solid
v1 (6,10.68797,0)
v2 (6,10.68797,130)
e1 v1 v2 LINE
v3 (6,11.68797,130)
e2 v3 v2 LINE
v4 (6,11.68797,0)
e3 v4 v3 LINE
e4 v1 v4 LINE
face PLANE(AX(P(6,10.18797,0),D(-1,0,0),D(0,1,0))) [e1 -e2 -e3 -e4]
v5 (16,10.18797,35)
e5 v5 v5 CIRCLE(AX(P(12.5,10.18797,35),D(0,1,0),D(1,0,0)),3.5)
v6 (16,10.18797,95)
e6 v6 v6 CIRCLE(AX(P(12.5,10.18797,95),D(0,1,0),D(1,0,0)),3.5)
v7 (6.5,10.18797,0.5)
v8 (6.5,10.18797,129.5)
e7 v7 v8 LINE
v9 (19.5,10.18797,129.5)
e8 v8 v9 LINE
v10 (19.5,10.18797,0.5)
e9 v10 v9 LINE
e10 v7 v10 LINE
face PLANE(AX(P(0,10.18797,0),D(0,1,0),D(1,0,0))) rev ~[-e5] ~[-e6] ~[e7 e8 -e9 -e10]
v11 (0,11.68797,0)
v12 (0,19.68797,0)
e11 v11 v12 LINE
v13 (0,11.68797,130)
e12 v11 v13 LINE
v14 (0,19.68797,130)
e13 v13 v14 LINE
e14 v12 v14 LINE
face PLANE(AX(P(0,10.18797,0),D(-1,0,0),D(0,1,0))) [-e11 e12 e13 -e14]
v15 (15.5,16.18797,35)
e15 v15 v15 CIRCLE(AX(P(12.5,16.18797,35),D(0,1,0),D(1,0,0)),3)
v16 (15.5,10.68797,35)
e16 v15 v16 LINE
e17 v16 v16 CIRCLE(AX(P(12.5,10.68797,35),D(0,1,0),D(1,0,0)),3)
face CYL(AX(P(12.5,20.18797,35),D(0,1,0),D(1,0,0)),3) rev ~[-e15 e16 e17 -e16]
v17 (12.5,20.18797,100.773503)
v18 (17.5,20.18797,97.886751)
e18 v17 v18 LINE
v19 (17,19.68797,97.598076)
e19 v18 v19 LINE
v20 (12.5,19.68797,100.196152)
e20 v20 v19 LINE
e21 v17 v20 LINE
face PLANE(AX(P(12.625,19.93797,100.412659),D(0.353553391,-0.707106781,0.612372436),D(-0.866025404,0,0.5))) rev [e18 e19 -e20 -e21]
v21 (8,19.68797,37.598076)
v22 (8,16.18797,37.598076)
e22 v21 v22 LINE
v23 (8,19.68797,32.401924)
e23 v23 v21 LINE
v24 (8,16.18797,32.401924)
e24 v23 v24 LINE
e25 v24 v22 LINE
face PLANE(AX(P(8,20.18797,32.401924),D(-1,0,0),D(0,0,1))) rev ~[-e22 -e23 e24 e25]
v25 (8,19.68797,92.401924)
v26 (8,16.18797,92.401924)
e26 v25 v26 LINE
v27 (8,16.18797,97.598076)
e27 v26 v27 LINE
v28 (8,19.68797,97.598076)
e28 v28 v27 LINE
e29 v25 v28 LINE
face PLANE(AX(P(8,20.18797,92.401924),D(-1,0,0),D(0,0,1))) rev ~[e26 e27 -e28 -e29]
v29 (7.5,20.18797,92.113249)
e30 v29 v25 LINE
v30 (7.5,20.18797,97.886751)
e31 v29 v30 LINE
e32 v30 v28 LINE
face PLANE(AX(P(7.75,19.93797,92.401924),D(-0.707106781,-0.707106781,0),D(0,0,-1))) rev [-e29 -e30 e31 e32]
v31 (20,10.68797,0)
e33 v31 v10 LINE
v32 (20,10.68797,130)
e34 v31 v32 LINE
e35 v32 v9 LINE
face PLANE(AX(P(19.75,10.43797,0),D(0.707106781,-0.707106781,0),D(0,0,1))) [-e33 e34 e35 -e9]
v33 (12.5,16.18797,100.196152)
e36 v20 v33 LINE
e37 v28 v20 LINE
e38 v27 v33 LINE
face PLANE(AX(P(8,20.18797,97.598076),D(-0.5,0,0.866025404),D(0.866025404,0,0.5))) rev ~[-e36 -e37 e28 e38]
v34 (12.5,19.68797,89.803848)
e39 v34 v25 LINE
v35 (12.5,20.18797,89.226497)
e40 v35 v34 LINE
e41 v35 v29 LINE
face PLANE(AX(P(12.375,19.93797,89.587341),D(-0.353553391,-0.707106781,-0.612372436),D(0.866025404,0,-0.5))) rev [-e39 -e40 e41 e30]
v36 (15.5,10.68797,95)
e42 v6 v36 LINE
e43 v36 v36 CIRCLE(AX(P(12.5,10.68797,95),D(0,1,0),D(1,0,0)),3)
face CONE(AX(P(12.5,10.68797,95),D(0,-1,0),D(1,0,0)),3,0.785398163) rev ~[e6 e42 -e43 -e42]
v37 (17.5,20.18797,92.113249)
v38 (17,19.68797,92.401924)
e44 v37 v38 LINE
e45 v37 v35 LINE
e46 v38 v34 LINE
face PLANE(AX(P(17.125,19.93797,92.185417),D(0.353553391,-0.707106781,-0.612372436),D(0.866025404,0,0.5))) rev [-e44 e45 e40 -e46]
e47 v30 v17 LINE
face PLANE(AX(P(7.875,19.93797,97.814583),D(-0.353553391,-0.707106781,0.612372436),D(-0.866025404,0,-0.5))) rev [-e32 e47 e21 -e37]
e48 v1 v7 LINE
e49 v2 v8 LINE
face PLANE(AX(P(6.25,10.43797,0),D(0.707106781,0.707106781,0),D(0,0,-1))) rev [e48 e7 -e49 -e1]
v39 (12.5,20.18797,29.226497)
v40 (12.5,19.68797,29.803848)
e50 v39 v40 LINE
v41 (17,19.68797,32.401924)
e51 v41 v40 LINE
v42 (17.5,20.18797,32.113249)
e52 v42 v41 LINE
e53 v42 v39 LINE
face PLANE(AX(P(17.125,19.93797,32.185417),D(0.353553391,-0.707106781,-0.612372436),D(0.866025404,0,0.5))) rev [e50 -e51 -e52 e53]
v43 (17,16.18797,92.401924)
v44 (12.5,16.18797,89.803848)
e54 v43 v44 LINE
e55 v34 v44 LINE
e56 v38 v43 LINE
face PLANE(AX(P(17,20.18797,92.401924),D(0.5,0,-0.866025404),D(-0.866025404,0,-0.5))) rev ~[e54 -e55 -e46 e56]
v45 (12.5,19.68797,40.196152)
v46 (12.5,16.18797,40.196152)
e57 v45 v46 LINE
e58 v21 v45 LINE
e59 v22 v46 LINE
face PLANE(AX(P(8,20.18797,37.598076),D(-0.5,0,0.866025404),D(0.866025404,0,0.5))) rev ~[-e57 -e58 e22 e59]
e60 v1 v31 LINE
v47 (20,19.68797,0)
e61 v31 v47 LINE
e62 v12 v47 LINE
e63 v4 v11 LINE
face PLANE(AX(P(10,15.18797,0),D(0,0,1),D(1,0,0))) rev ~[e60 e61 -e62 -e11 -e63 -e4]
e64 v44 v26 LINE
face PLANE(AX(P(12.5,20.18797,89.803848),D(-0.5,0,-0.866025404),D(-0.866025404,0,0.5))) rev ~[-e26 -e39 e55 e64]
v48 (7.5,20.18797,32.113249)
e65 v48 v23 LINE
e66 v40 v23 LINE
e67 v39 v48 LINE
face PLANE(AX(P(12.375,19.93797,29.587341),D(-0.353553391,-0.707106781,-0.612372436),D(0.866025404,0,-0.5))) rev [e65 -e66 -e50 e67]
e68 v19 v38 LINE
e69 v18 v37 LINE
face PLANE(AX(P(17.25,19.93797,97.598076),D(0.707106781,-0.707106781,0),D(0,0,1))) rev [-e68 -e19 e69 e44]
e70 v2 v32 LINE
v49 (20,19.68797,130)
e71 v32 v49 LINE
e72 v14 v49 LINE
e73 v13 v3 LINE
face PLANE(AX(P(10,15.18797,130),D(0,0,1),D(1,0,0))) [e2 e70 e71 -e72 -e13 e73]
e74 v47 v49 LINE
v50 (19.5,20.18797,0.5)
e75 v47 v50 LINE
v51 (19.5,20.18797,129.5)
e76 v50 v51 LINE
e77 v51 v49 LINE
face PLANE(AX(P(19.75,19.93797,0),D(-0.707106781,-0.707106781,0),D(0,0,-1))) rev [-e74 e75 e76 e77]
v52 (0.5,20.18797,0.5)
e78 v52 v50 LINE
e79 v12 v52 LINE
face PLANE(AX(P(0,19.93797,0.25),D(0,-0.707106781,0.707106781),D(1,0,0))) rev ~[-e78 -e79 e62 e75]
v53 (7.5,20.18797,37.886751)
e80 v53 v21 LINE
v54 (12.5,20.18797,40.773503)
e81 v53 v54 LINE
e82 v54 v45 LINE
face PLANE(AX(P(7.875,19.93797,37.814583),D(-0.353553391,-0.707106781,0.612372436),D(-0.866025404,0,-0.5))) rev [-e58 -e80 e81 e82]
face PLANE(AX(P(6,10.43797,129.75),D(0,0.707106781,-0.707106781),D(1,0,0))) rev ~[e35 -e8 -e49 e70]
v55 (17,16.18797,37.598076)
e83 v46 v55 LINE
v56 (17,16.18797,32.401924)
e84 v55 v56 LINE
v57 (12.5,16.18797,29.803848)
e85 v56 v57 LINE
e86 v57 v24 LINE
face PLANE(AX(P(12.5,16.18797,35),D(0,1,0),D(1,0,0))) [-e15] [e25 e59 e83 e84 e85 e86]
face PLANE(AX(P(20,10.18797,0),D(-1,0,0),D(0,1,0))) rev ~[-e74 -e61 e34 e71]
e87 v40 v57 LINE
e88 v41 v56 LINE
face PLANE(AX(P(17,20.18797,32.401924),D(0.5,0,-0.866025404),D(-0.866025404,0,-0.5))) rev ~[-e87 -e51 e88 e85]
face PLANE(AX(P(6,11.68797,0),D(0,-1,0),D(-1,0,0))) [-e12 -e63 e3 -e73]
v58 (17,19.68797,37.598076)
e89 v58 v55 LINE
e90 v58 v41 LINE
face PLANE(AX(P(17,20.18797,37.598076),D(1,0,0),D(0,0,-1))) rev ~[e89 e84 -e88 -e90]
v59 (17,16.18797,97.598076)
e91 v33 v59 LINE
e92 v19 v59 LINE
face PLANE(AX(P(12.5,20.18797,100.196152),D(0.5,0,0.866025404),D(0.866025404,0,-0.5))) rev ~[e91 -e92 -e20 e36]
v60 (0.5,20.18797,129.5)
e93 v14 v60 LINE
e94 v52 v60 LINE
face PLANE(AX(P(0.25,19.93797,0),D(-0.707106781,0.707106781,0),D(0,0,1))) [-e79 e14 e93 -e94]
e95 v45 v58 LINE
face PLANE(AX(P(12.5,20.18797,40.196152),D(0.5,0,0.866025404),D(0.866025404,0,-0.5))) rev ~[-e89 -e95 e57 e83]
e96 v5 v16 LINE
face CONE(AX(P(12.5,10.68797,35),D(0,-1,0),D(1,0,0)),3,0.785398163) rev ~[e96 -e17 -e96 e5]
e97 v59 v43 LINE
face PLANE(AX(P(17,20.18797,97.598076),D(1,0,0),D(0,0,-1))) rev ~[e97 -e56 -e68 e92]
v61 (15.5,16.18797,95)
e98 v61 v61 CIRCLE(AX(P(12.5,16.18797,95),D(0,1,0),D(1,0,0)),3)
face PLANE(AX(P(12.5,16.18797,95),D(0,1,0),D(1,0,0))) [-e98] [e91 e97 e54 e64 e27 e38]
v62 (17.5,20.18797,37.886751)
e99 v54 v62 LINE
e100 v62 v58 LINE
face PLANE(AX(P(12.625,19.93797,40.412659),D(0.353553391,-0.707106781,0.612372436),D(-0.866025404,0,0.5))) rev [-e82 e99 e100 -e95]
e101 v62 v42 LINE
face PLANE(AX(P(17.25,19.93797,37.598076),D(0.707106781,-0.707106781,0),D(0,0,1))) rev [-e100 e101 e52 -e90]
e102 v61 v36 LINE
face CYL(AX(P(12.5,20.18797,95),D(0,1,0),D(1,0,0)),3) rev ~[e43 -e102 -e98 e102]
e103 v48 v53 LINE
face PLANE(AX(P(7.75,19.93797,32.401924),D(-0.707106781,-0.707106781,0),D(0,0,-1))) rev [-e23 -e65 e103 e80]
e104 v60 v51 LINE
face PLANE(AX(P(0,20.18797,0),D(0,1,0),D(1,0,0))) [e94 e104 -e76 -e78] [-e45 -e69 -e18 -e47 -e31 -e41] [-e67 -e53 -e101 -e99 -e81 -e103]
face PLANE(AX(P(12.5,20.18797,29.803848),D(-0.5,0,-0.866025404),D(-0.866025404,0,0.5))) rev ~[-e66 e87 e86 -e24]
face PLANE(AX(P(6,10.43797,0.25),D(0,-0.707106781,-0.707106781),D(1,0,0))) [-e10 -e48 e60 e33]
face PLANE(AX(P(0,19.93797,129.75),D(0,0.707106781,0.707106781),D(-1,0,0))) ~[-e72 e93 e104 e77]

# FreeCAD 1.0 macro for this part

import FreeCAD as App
import Part
import Sketcher
from FreeCAD import Vector
Q = App.Units.Quantity


def edges_at(feature, points):
    """Names of the edges that pass closest to the given points."""
    edges = feature.Shape.Edges
    near = lambda p: min(range(len(edges)), key=lambda i: edges[i].distToShape(Part.Vertex(*p))[0])
    return sorted({f"Edge{near(p) + 1}" for p in points})


def add_polygon(sketch, points):
    """Adds a closed chain of lines whose ends are joined by coincident constraints."""
    first, n = sketch.GeometryCount, len(points)
    for a, b in zip(points, points[1:] + points[:1]):
        sketch.addGeometry(Part.LineSegment(App.Vector(*a, 0), App.Vector(*b, 0)), False)
    for i in range(n):
        sketch.addConstraint(Sketcher.Constraint("Coincident", first + i, 2, first + (i + 1) % n, 1))

doc = App.newDocument("Part")
body = doc.addObject("PartDesign::Body", "Body")

# Sketch on XY plane
sketch1 = body.newObject("Sketcher::SketchObject", "Sketch")
sketch1.AttachmentSupport = (doc.getObject("XY_Plane"), [""])
sketch1.MapMode = "FlatFace"
add_polygon(sketch1, [(0, 20), (0, 10), (20, 10), (20, 20)])  # lines 0-3
sketch1.addConstraint(Sketcher.Constraint("Vertical", 0))
sketch1.addConstraint(Sketcher.Constraint("Horizontal", 1))
sketch1.addConstraint(Sketcher.Constraint("Vertical", 2))
sketch1.addConstraint(Sketcher.Constraint("Horizontal", 3))
sketch1.addConstraint(Sketcher.Constraint("PointOnObject", 0, 2, -2))
sketch1.addConstraint(Sketcher.Constraint("DistanceX", 1, 1, 1, 2, 20.0))
sketch1.addConstraint(Sketcher.Constraint("DistanceY", 0, 2, 0, 1, 10.0))
sketch1.addConstraint(Sketcher.Constraint("DistanceY", -1, 1, 0, 2, 10.18797))
pad1 = body.newObject("PartDesign::Pad", "Pad")
pad1.Profile = sketch1
pad1.Length = 130

# Sketch on XZ plane
sketch2 = body.newObject("Sketcher::SketchObject", "Sketch001")
sketch2.AttachmentSupport = (doc.getObject("XZ_Plane"), [""])
sketch2.MapMode = "FlatFace"
sketch2.AttachmentOffset = App.Placement(Vector(0, 0, -20.18797), App.Rotation())
sketch2.addGeometry(Part.Circle(Vector(12.5, 35, 0), Vector(0, 0, 1), 3), False)
sketch2.addConstraint(Sketcher.Constraint("Diameter", 0, 6.0))
sketch2.addConstraint(Sketcher.Constraint("DistanceY", -1, 1, 0, 3, 35.0))
sketch2.addConstraint(Sketcher.Constraint("DistanceX", -1, 1, 0, 3, 12.5))
pocket1 = body.newObject("PartDesign::Pocket", "Pocket")
pocket1.Profile = sketch2
pocket1.Length = 140
pocket1.Reversed = True

# Sketch on XZ plane
sketch3 = body.newObject("Sketcher::SketchObject", "Sketch002")
sketch3.AttachmentSupport = (doc.getObject("XZ_Plane"), [""])
sketch3.MapMode = "FlatFace"
sketch3.AttachmentOffset = App.Placement(Vector(0, 0, -20.18797), App.Rotation())
add_polygon(sketch3, [(12, 30), (8, 32), (8, 38), (12, 40), (17, 38), (17, 32)])  # lines 0-5
sketch3.addConstraint(Sketcher.Constraint("Vertical", 1))
sketch3.addConstraint(Sketcher.Constraint("Vertical", 4))
sketch3.addConstraint(Sketcher.Constraint("Parallel", 0, 3))
sketch3.addConstraint(Sketcher.Constraint("Parallel", 2, 5))
sketch3.addConstraint(Sketcher.Constraint("Horizontal", 1, 2, 3, 2))
sketch3.addConstraint(Sketcher.Constraint("Horizontal", 0, 2, 4, 2))
sketch3.addConstraint(Sketcher.Constraint("Vertical", 2, 2, 5, 2))
sketch3.addConstraint(Sketcher.Constraint("Angle", 0, Q("150 deg")))
sketch3.addConstraint(Sketcher.Constraint("DistanceX", -1, 1, 0, 2, 8.0))
sketch3.addConstraint(Sketcher.Constraint("DistanceX", -1, 1, 3, 2, 17.0))
sketch3.addConstraint(Sketcher.Constraint("DistanceY", 1, 1, 1, 2, 5.196152))
sketch3.addConstraint(Sketcher.Constraint("DistanceY", -1, 1, 0, 2, 32.401924))
pocket2 = body.newObject("PartDesign::Pocket", "Pocket001")
pocket2.Profile = sketch3
pocket2.Length = 4
pocket2.Reversed = True
doc.recompute()

linearpattern = body.newObject("PartDesign::LinearPattern", "LinearPattern")
linearpattern.Originals = [pocket1, pocket2]
linearpattern.Direction = (doc.getObject("Z_Axis"), [""])
linearpattern.Mode = "offset"
linearpattern.Offset = 60
linearpattern.Occurrences = 2
body.Tip = linearpattern

# Sketch on XY plane
sketch4 = body.newObject("Sketcher::SketchObject", "Sketch003")
sketch4.AttachmentSupport = (doc.getObject("XY_Plane"), [""])
sketch4.MapMode = "FlatFace"
add_polygon(sketch4, [(6, 11.7), (6, 10.2), (0, 10.2), (0, 11.7)])  # lines 0-3
sketch4.addConstraint(Sketcher.Constraint("Vertical", 0))
sketch4.addConstraint(Sketcher.Constraint("Horizontal", 1))
sketch4.addConstraint(Sketcher.Constraint("Vertical", 2))
sketch4.addConstraint(Sketcher.Constraint("Horizontal", 3))
sketch4.addConstraint(Sketcher.Constraint("PointOnObject", 1, 2, -2))
sketch4.addConstraint(Sketcher.Constraint("DistanceX", 1, 2, 1, 1, 6.0))
sketch4.addConstraint(Sketcher.Constraint("DistanceY", 0, 2, 0, 1, 1.5))
sketch4.addConstraint(Sketcher.Constraint("DistanceY", -1, 1, 0, 2, 10.18797))
pocket3 = body.newObject("PartDesign::Pocket", "Pocket002")
pocket3.Profile = sketch4
pocket3.Length = 200
pocket3.Reversed = True
doc.recompute()

chamfer = body.newObject("PartDesign::Chamfer", "Chamfer")
chamfer.Base = (pocket3, edges_at(pocket3, [
    (9.5, 10.188, 35),
    (14.75, 20.188, 31.103),
    (10.25, 20.188, 31.103),
    (8, 20.188, 35),
    (10.25, 20.188, 38.897),
    (14.75, 20.188, 38.897),
    (17, 20.188, 35),
    (9.5, 10.188, 95),
    (14.75, 20.188, 91.103),
    (10.25, 20.188, 91.103),
    (8, 20.188, 95),
    (10.25, 20.188, 98.897),
    (14.75, 20.188, 98.897),
    (17, 20.188, 95),
    (10, 20.188, 0),
    (13, 10.188, 0),
    (13, 10.188, 130),
    (6, 10.188, 65),
    (20, 10.188, 65),
    (0, 20.188, 65),
    (20, 20.188, 65),
    (10, 20.188, 130),
]))
chamfer.Size = 0.5

doc.recompute()
